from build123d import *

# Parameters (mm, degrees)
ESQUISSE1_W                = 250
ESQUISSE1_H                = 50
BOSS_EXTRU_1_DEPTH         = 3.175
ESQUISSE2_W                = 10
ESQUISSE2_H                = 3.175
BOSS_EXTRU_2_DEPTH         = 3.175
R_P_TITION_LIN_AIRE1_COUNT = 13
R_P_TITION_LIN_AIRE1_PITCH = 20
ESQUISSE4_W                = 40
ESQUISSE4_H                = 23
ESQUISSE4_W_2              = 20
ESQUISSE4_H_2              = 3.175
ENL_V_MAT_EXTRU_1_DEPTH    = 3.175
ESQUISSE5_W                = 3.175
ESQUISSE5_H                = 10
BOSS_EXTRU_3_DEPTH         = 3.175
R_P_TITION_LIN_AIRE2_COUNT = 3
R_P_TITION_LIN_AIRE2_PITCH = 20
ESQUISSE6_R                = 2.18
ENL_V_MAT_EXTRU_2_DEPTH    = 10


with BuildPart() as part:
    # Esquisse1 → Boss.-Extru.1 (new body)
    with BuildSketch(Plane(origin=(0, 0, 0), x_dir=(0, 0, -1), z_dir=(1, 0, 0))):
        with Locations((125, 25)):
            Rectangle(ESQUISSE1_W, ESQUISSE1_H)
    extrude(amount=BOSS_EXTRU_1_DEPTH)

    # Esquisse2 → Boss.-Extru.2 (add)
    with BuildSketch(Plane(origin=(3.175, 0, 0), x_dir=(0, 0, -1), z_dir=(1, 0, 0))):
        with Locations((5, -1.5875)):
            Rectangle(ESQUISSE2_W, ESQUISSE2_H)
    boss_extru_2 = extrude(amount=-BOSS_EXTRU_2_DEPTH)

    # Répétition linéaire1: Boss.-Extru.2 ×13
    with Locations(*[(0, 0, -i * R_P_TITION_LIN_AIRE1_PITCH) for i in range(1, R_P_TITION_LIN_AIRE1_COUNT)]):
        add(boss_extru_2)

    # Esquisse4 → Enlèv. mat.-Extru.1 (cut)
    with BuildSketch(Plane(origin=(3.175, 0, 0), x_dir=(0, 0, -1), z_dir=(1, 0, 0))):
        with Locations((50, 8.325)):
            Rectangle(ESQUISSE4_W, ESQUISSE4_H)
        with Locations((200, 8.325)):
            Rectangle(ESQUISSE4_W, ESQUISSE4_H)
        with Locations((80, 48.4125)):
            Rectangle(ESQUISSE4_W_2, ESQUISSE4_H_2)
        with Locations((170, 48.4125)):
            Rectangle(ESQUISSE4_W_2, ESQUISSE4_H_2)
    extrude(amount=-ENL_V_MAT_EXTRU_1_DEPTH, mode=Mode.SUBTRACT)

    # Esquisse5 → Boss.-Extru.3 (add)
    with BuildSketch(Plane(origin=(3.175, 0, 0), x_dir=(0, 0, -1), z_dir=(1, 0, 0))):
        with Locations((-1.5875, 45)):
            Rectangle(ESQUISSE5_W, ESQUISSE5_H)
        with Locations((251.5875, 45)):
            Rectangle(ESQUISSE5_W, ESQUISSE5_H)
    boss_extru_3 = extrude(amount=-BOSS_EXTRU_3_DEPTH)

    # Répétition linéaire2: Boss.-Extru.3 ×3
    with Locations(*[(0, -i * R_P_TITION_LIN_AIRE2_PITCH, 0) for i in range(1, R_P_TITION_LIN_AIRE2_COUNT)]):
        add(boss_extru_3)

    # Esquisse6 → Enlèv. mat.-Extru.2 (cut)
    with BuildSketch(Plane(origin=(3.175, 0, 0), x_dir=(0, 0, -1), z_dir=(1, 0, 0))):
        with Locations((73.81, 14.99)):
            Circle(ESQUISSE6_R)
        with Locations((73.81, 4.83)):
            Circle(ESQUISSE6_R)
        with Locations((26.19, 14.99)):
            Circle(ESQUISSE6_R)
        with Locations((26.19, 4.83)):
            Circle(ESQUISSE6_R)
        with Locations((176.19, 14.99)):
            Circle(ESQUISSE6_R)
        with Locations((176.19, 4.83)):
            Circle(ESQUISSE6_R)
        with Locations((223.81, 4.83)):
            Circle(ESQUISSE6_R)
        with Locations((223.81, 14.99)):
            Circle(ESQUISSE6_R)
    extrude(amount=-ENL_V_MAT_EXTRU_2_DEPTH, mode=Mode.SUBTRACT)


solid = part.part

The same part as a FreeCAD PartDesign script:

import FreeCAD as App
import Part
import Sketcher

V = App.Vector


def add_polygon(sketch, points):
    """Adds a closed chain of lines whose ends are joined by coincident constraints."""
    first, n = sketch.GeometryCount, len(points)
    for a, b in zip(points, points[1:] + points[:1]):
        sketch.addGeometry(Part.LineSegment(App.Vector(*a, 0), App.Vector(*b, 0)), False)
    for i in range(n):
        sketch.addConstraint(Sketcher.Constraint("Coincident", first + i, 2, first + (i + 1) % n, 1))

doc = App.newDocument("Part")
body = doc.addObject("PartDesign::Body", "Body")

# Sketch on YZ plane
sketch1 = body.newObject("Sketcher::SketchObject", "Sketch")
sketch1.AttachmentSupport = (doc.getObject("YZ_Plane"), [""])
sketch1.MapMode = "FlatFace"
add_polygon(sketch1, [(50, 0), (0, 0), (0, -250), (50, -250)])  # lines 0-3
sketch1.addConstraint([
    Sketcher.Constraint("Horizontal", 0),
    Sketcher.Constraint("Vertical", 1),
    Sketcher.Constraint("Horizontal", 2),
    Sketcher.Constraint("Vertical", 3),
    Sketcher.Constraint("Coincident", 0, 2, -1, 1),
    Sketcher.Constraint("DistanceX", 0, 2, 0, 1, 50.0),
    Sketcher.Constraint("DistanceY", 1, 2, 1, 1, 250.0),
])
pad1 = body.newObject("PartDesign::Pad", "Pad")
pad1.Profile = sketch1
pad1.Length = 3.175

# Sketch on YZ plane
sketch2 = body.newObject("Sketcher::SketchObject", "Sketch001")
sketch2.AttachmentSupport = (doc.getObject("YZ_Plane"), [""])
sketch2.MapMode = "FlatFace"
sketch2.AttachmentOffset = App.Placement(V(0, 0, 3.175), App.Rotation())
add_polygon(sketch2, [(0, 0), (-3.2, 0), (-3.2, -10), (0, -10)])  # lines 0-3
sketch2.addConstraint([
    Sketcher.Constraint("Horizontal", 0),
    Sketcher.Constraint("Vertical", 1),
    Sketcher.Constraint("Horizontal", 2),
    Sketcher.Constraint("Vertical", 3),
    Sketcher.Constraint("Coincident", 3, 2, -1, 1),
    Sketcher.Constraint("DistanceY", 1, 2, 1, 1, 10.0),
    Sketcher.Constraint("DistanceX", 0, 2, 0, 1, 3.175),
])
pad2 = body.newObject("PartDesign::Pad", "Pad001")
pad2.Profile = sketch2
pad2.Length = 3.175
pad2.Reversed = True
doc.recompute()

linearpattern = body.newObject("PartDesign::LinearPattern", "LinearPattern")
linearpattern.Originals = [pad2]
linearpattern.Direction = (doc.getObject("Z_Axis"), [""])
linearpattern.Mode = "offset"
linearpattern.Offset = 20
linearpattern.Occurrences = 13
linearpattern.Reversed = True
body.Tip = linearpattern

# Sketch on YZ plane
sketch3 = body.newObject("Sketcher::SketchObject", "Sketch002")
sketch3.AttachmentSupport = (doc.getObject("YZ_Plane"), [""])
sketch3.MapMode = "FlatFace"
sketch3.AttachmentOffset = App.Placement(V(0, 0, 3.175), App.Rotation())
add_polygon(sketch3, [(19.8, -30), (-3.2, -30), (-3.2, -70), (19.8, -70)])  # lines 0-3
add_polygon(sketch3, [(19.8, -180), (-3.2, -180), (-3.2, -220), (19.8, -220)])  # lines 4-7
add_polygon(sketch3, [(50, -70), (46.8, -70), (46.8, -90), (50, -90)])  # lines 8-11
add_polygon(sketch3, [(50, -160), (46.8, -160), (46.8, -180), (50, -180)])  # lines 12-15
sketch3.addConstraint([
    Sketcher.Constraint("Horizontal", 0),
    Sketcher.Constraint("Vertical", 1),
    Sketcher.Constraint("Horizontal", 2),
    Sketcher.Constraint("Vertical", 3),
    Sketcher.Constraint("Horizontal", 4),
    Sketcher.Constraint("Vertical", 5),
    Sketcher.Constraint("Horizontal", 6),
    Sketcher.Constraint("Vertical", 7),
    Sketcher.Constraint("Horizontal", 8),
    Sketcher.Constraint("Vertical", 9),
    Sketcher.Constraint("Horizontal", 10),
    Sketcher.Constraint("Vertical", 11),
    Sketcher.Constraint("Horizontal", 12),
    Sketcher.Constraint("Vertical", 13),
    Sketcher.Constraint("Horizontal", 14),
    Sketcher.Constraint("Vertical", 15),
    Sketcher.Constraint("Horizontal", 2, 2, 8, 2),
    Sketcher.Constraint("Horizontal", 7, 2, 13, 2),
    Sketcher.Constraint("Vertical", 1, 2, 4, 2),
    Sketcher.Constraint("Vertical", 3, 2, 6, 2),
    Sketcher.Constraint("Vertical", 9, 2, 12, 2),
    Sketcher.Constraint("Vertical", 11, 2, 14, 2),
    Sketcher.Constraint("Equal", 3, 5),
    Sketcher.Constraint("Equal", 11, 13),
    Sketcher.Constraint("DistanceX", 0, 2, 0, 1, 23.0),
    Sketcher.Constraint("DistanceY", 1, 2, 1, 1, 40.0),
    Sketcher.Constraint("DistanceY", 9, 2, 9, 1, 20.0),
    Sketcher.Constraint("DistanceY", 0, 2, -1, 1, 30.0),
    Sketcher.Constraint("DistanceY", 4, 2, -1, 1, 180.0),
    Sketcher.Constraint("DistanceX", -1, 1, 10, 2, 50.0),
    Sketcher.Constraint("DistanceX", 2, 2, 8, 2, 27.0),
    Sketcher.Constraint("DistanceX", 8, 2, 8, 1, 3.175),
])
pocket1 = body.newObject("PartDesign::Pocket", "Pocket")
pocket1.Profile = sketch3
pocket1.Length = 3.175

# Sketch on YZ plane
sketch4 = body.newObject("Sketcher::SketchObject", "Sketch003")
sketch4.AttachmentSupport = (doc.getObject("YZ_Plane"), [""])
sketch4.MapMode = "FlatFace"
sketch4.AttachmentOffset = App.Placement(V(0, 0, 3.175), App.Rotation())
add_polygon(sketch4, [(50, 3.2), (40, 3.2), (40, 0), (50, 0)])  # lines 0-3
add_polygon(sketch4, [(50, -250), (40, -250), (40, -253.2), (50, -253.2)])  # lines 4-7
sketch4.addConstraint([
    Sketcher.Constraint("Horizontal", 0),
    Sketcher.Constraint("Vertical", 1),
    Sketcher.Constraint("Horizontal", 2),
    Sketcher.Constraint("Vertical", 3),
    Sketcher.Constraint("Horizontal", 4),
    Sketcher.Constraint("Vertical", 5),
    Sketcher.Constraint("Horizontal", 6),
    Sketcher.Constraint("Vertical", 7),
    Sketcher.Constraint("PointOnObject", 1, 2, -1),
    Sketcher.Constraint("Vertical", 1, 2, 4, 2),
    Sketcher.Constraint("Vertical", 3, 2, 6, 2),
    Sketcher.Constraint("Equal", 3, 5),
    Sketcher.Constraint("DistanceX", 0, 2, 0, 1, 10.0),
    Sketcher.Constraint("DistanceX", -1, 1, 0, 2, 40.0),
    Sketcher.Constraint("DistanceY", 4, 2, -1, 1, 250.0),
    Sketcher.Constraint("DistanceY", 1, 2, 1, 1, 3.175),
])
pad3 = body.newObject("PartDesign::Pad", "Pad002")
pad3.Profile = sketch4
pad3.Length = 3.175
pad3.Reversed = True
doc.recompute()

linearpattern2 = body.newObject("PartDesign::LinearPattern", "LinearPattern001")
linearpattern2.Originals = [pad3]
linearpattern2.Direction = (doc.getObject("Y_Axis"), [""])
linearpattern2.Mode = "offset"
linearpattern2.Offset = 20
linearpattern2.Occurrences = 3
linearpattern2.Reversed = True
body.Tip = linearpattern2

# Sketch on YZ plane
sketch5 = body.newObject("Sketcher::SketchObject", "Sketch004")
sketch5.AttachmentSupport = (doc.getObject("YZ_Plane"), [""])
sketch5.MapMode = "FlatFace"
sketch5.AttachmentOffset = App.Placement(V(0, 0, 3.175), App.Rotation())
sketch5.addGeometry([
    Part.Circle(V(15, -73.8, 0), V(0, 0, 1), 2.2),  # 0
    Part.Circle(V(4.8, -73.8, 0), V(0, 0, 1), 2.2),  # 1
    Part.Circle(V(15, -26.2, 0), V(0, 0, 1), 2.2),  # 2
    Part.Circle(V(4.8, -26.2, 0), V(0, 0, 1), 2.2),  # 3
    Part.Circle(V(15, -176.2, 0), V(0, 0, 1), 2.2),  # 4
    Part.Circle(V(4.8, -176.2, 0), V(0, 0, 1), 2.2),  # 5
    Part.Circle(V(4.8, -223.8, 0), V(0, 0, 1), 2.2),  # 6
    Part.Circle(V(15, -223.8, 0), V(0, 0, 1), 2.2),  # 7
], False)
sketch5.addConstraint([
    Sketcher.Constraint("Equal", 0, 1),
    Sketcher.Constraint("Equal", 1, 2),
    Sketcher.Constraint("Equal", 2, 3),
    Sketcher.Constraint("Equal", 3, 4),
    Sketcher.Constraint("Equal", 4, 5),
    Sketcher.Constraint("Equal", 5, 6),
    Sketcher.Constraint("Equal", 6, 7),
    Sketcher.Constraint("Horizontal", 0, 3, 1, 3),
    Sketcher.Constraint("Horizontal", 2, 3, 3, 3),
    Sketcher.Constraint("Horizontal", 4, 3, 5, 3),
    Sketcher.Constraint("Horizontal", 6, 3, 7, 3),
    Sketcher.Constraint("Vertical", 0, 3, 2, 3),
    Sketcher.Constraint("Vertical", 1, 3, 3, 3),
    Sketcher.Constraint("Vertical", 2, 3, 4, 3),
    Sketcher.Constraint("Vertical", 3, 3, 5, 3),
    Sketcher.Constraint("Vertical", 5, 3, 6, 3),
    Sketcher.Constraint("Vertical", 4, 3, 7, 3),
    Sketcher.Constraint("Diameter", 0, 4.36),
    Sketcher.Constraint("DistanceY", 4, 3, 2, 3, 150.0),
    Sketcher.Constraint("DistanceY", 6, 3, 1, 3, 150.0),
    Sketcher.Constraint("DistanceX", -1, 1, 0, 3, 14.99),
    Sketcher.Constraint("DistanceY", 0, 3, -1, 1, 73.81),
    Sketcher.Constraint("DistanceX", -1, 1, 1, 3, 4.83),
    Sketcher.Constraint("DistanceY", 2, 3, -1, 1, 26.19),
])
pocket2 = body.newObject("PartDesign::Pocket", "Pocket001")
pocket2.Profile = sketch5
pocket2.Length = 10

doc.recompute()
